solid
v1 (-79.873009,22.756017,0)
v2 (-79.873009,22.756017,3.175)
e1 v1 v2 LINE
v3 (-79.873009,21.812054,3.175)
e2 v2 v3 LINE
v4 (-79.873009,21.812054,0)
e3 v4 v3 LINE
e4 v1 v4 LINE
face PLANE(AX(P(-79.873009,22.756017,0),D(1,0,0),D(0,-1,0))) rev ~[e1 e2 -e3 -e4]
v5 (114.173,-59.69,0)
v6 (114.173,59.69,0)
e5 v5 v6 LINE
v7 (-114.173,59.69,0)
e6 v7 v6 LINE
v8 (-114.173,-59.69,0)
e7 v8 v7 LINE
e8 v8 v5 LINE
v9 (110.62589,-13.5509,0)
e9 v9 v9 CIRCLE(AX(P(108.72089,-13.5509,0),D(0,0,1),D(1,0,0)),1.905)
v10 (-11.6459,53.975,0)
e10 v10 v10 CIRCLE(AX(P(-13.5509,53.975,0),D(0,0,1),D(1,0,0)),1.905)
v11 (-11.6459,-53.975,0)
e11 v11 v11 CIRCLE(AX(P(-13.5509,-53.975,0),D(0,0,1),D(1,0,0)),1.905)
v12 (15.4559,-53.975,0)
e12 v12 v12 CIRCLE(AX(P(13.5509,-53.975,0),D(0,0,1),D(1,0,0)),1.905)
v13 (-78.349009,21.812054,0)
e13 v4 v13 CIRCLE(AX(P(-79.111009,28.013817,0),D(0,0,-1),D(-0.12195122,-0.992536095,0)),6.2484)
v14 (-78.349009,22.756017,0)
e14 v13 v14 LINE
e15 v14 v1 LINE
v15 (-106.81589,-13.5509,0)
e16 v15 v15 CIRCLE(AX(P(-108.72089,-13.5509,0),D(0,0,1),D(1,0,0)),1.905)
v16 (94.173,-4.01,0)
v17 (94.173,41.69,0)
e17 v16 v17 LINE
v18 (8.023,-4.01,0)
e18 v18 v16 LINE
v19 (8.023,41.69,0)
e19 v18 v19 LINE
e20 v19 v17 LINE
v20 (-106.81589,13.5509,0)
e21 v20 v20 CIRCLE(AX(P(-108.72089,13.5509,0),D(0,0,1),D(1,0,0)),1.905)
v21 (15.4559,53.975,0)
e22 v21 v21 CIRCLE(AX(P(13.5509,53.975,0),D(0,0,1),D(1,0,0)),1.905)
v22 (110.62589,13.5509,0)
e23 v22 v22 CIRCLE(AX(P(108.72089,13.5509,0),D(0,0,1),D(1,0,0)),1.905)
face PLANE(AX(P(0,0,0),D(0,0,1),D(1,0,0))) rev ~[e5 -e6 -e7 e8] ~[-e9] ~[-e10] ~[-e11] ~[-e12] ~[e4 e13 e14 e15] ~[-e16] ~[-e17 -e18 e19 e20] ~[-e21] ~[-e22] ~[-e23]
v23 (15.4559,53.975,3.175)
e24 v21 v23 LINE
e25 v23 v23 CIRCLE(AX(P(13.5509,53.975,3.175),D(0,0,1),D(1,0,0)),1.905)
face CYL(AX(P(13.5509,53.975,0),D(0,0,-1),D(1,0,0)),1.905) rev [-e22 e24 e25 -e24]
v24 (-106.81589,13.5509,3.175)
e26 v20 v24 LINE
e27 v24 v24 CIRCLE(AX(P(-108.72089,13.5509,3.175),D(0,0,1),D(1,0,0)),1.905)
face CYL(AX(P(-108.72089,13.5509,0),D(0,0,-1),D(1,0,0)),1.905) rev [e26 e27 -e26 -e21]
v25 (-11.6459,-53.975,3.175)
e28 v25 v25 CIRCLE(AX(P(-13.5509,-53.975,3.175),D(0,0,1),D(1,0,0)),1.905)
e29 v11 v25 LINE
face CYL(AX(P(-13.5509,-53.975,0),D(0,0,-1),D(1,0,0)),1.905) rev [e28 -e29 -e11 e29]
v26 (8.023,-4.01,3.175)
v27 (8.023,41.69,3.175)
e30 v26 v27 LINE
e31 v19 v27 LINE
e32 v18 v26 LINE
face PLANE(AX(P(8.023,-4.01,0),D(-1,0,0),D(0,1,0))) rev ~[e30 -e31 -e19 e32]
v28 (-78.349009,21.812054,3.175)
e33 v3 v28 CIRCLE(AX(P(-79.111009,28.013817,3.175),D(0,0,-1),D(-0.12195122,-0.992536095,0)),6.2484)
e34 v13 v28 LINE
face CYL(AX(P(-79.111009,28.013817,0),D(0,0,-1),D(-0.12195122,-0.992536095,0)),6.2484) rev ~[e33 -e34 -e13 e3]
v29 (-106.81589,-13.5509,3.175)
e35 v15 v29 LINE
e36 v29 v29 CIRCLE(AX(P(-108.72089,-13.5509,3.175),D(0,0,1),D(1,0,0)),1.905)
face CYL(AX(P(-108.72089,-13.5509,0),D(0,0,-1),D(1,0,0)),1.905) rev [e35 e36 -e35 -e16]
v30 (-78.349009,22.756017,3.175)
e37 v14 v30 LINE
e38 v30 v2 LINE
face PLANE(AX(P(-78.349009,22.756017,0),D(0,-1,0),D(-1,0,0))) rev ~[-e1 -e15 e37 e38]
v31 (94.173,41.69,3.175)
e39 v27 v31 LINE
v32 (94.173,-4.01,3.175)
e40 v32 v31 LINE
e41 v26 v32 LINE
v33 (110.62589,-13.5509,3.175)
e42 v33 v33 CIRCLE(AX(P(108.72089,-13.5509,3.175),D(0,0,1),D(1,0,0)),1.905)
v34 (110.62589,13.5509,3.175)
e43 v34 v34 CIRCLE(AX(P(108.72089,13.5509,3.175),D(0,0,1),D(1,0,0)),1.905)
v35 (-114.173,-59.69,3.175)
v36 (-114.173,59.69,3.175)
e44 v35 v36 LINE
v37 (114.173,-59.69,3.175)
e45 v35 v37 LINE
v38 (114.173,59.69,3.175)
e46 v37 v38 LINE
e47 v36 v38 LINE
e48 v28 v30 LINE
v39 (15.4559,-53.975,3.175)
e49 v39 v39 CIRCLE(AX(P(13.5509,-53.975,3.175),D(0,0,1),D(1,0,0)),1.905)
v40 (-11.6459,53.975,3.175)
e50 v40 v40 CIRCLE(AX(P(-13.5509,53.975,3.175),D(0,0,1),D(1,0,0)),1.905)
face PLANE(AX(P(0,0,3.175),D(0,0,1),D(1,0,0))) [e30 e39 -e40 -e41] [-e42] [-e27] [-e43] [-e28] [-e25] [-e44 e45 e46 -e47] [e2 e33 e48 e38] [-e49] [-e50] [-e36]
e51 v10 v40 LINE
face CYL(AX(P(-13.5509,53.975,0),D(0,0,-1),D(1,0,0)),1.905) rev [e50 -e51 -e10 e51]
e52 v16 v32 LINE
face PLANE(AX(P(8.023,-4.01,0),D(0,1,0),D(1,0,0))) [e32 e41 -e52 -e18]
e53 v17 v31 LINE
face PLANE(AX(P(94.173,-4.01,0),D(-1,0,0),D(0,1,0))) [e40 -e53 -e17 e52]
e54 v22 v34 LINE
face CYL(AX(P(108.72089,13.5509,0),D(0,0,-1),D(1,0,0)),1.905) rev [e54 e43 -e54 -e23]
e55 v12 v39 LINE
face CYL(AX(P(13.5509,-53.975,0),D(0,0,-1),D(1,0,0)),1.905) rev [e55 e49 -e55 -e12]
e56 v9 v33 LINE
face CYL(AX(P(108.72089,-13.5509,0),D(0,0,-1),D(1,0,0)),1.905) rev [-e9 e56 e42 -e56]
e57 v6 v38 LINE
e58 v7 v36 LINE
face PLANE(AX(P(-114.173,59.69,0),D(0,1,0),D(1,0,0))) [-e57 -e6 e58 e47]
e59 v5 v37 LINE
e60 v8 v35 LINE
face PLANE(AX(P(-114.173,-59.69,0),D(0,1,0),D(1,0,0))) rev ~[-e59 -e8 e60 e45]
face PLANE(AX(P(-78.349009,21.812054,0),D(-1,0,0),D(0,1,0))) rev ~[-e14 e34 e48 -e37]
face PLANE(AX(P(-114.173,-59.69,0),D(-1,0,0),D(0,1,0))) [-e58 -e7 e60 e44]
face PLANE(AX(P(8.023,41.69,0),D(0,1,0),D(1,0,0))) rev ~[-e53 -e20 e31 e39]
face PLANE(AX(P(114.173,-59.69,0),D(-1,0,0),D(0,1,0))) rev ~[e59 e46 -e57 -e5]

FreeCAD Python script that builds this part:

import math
import FreeCAD as App
import Part
import Sketcher
Q = App.Units.Quantity


def add_polygon(sketch, points):
    """Adds a closed chain of lines whose ends are joined by coincident constraints."""
    first, n = sketch.GeometryCount, len(points)
    for a, b in zip(points, points[1:] + points[:1]):
        sketch.addGeometry(Part.LineSegment(App.Vector(*a, 0), App.Vector(*b, 0)), False)
    for i in range(n):
        sketch.addConstraint(Sketcher.Constraint("Coincident", first + i, 2, first + (i + 1) % n, 1))

doc = App.newDocument("Part")
params = doc.addObject("Spreadsheet::Sheet", "Params")
for row, (alias, value) in enumerate([
    ("sketch1_diameter", "0.15 in"),
    ("sketch1_height", "4.7 in"),
    ("sketch1_radius", "0.246 in"),
    ("sketch1_width", "8.99 in"),
    ("sketch1_width2", "0.06 in"),
    ("pad1_length", "0.125 in"),
], start=1):
    params.set(f"A{row}", alias)
    params.set(f"B{row}", "=" + value)
    params.setAlias(f"B{row}", alias)

body = doc.addObject("PartDesign::Body", "Body")

sketch1 = doc.addObject("Sketcher::SketchObject", "Sketch")
body.addObject(sketch1)
sketch1.AttachmentSupport = (doc.XY_Plane, [""])
sketch1.MapMode = "FlatFace"
add_polygon(sketch1, [(-114.2, 59.7), (-114.2, -59.7), (114.2, -59.7), (114.2, 59.7)])
sketch1.addGeometry(Part.Circle(App.Vector(-13.6, -54, 0), App.Vector(0, 0, 1), 1.9), False)
sketch1.addGeometry(Part.Circle(App.Vector(-108.7, -13.6, 0), App.Vector(0, 0, 1), 1.9), False)
sketch1.addGeometry(Part.Circle(App.Vector(13.6, -54, 0), App.Vector(0, 0, 1), 1.9), False)
sketch1.addGeometry(Part.Circle(App.Vector(108.7, -13.6, 0), App.Vector(0, 0, 1), 1.9), False)
sketch1.addGeometry(Part.Circle(App.Vector(-108.7, 13.6, 0), App.Vector(0, 0, 1), 1.9), False)
sketch1.addGeometry(Part.ArcOfCircle(Part.Circle(App.Vector(-79.1, 28, 0), App.Vector(0, 0, 1), 6.2), math.radians(-83), math.radians(263)), False)
sketch1.addGeometry(Part.LineSegment(App.Vector(-78.3, 21.8, 0), App.Vector(-78.3, 22.8, 0)), False)
sketch1.addGeometry(Part.LineSegment(App.Vector(-78.3, 22.8, 0), App.Vector(-79.9, 22.8, 0)), False)
sketch1.addGeometry(Part.LineSegment(App.Vector(-79.9, 22.8, 0), App.Vector(-79.9, 21.8, 0)), False)
sketch1.addGeometry(Part.Circle(App.Vector(-13.6, 54, 0), App.Vector(0, 0, 1), 1.9), False)
add_polygon(sketch1, [(94.2, -4), (8, -4), (8, 41.7), (94.2, 41.7)])
sketch1.addGeometry(Part.Circle(App.Vector(108.7, 13.6, 0), App.Vector(0, 0, 1), 1.9), False)
sketch1.addGeometry(Part.Circle(App.Vector(13.6, 54, 0), App.Vector(0, 0, 1), 1.9), False)
sketch1.addConstraint(Sketcher.Constraint("Coincident", 9, 1, 10, 1))
sketch1.addConstraint(Sketcher.Constraint("Coincident", 10, 2, 11, 1))
sketch1.addConstraint(Sketcher.Constraint("Coincident", 11, 2, 12, 1))
sketch1.addConstraint(Sketcher.Constraint("Coincident", 12, 2, 9, 2))
sketch1.addConstraint(Sketcher.Constraint("Vertical", 0))
sketch1.addConstraint(Sketcher.Constraint("Horizontal", 1))
sketch1.addConstraint(Sketcher.Constraint("Vertical", 2))
sketch1.addConstraint(Sketcher.Constraint("Horizontal", 3))
sketch1.addConstraint(Sketcher.Constraint("Vertical", 10))
sketch1.addConstraint(Sketcher.Constraint("Horizontal", 11))
sketch1.addConstraint(Sketcher.Constraint("Vertical", 12))
sketch1.addConstraint(Sketcher.Constraint("Horizontal", 14))
sketch1.addConstraint(Sketcher.Constraint("Vertical", 15))
sketch1.addConstraint(Sketcher.Constraint("Horizontal", 16))
sketch1.addConstraint(Sketcher.Constraint("Vertical", 17))
sketch1.addConstraint(Sketcher.Constraint("Equal", 4, 5))
sketch1.addConstraint(Sketcher.Constraint("Equal", 5, 6))
sketch1.addConstraint(Sketcher.Constraint("Equal", 6, 7))
sketch1.addConstraint(Sketcher.Constraint("Equal", 7, 8))
sketch1.addConstraint(Sketcher.Constraint("Equal", 8, 13))
sketch1.addConstraint(Sketcher.Constraint("Equal", 13, 18))
sketch1.addConstraint(Sketcher.Constraint("Equal", 18, 19))
sketch1.addConstraint(Sketcher.Constraint("Symmetric", 7, 3, 8, 3, -1, 1))
sketch1.addConstraint(Sketcher.Constraint("Symmetric", 6, 3, 13, 3, -1, 1))
sketch1.addConstraint(Sketcher.Constraint("Symmetric", 5, 3, 18, 3, -1, 1))
sketch1.addConstraint(Sketcher.Constraint("Symmetric", 4, 3, 19, 3, -1, 1))
sketch1.addConstraint(Sketcher.Constraint("Symmetric", 0, 2, 2, 2, -1, 1))
sketch1.addConstraint(Sketcher.Constraint("Symmetric", 4, 3, 6, 3, -2))
sketch1.addConstraint(Sketcher.Constraint("Symmetric", 5, 3, 7, 3, -2))
sketch1.addConstraint(Sketcher.Constraint("Horizontal", 9, 1, 12, 2))
sketch1.addConstraint(Sketcher.Constraint("Diameter", 4, Q("0.15 in")))
sketch1.addConstraint(Sketcher.Constraint("DistanceY", 0, 2, 0, 1, Q("4.7 in")))
sketch1.addConstraint(Sketcher.Constraint("Radius", 9, Q("0.246 in")))
sketch1.addConstraint(Sketcher.Constraint("DistanceX", 1, 1, 1, 2, Q("8.99 in")))
sketch1.addConstraint(Sketcher.Constraint("DistanceX", 11, 2, 11, 1, Q("0.06 in")))
sketch1.addConstraint(Sketcher.Constraint("DistanceY", 4, 3, 13, 3, Q("4.25 in")))
sketch1.addConstraint(Sketcher.Constraint("DistanceX", 4, 3, 6, 3, Q("1.067 in")))
sketch1.addConstraint(Sketcher.Constraint("DistanceY", 5, 3, 8, 3, Q("1.067 in")))
sketch1.addConstraint(Sketcher.Constraint("DistanceY", 10, 2, 9, 3, Q("0.207 in")))
sketch1.addConstraint(Sketcher.Constraint("DistanceX", 14, 2, 14, 1, 86.15))
sketch1.addConstraint(Sketcher.Constraint("DistanceY", 15, 1, 15, 2, 45.7))
sketch1.addConstraint(Sketcher.Constraint("DistanceX", 5, 3, 7, 3, Q("8.5607 in")))
sketch1.addConstraint(Sketcher.Constraint("DistanceX", -1, 1, 14, 2, 8.023))
sketch1.addConstraint(Sketcher.Constraint("DistanceY", 14, 2, -1, 1, 4.01))
sketch1.addConstraint(Sketcher.Constraint("DistanceX", 9, 3, 7, 3, 187.831899))
sketch1.addConstraint(Sketcher.Constraint("DistanceY", -1, 1, 9, 3, 28.013817))
sketch1.setExpression("Constraints[38]", "Params.sketch1_diameter")
sketch1.setExpression("Constraints[39]", "Params.sketch1_height")
sketch1.setExpression("Constraints[40]", "Params.sketch1_radius")
sketch1.setExpression("Constraints[41]", "Params.sketch1_width")
sketch1.setExpression("Constraints[42]", "Params.sketch1_width2")
pad1 = doc.addObject("PartDesign::Pad", "Pad")
body.addObject(pad1)
pad1.Profile = sketch1
pad1.setExpression("Length", "Params.pad1_length")

doc.recompute()
